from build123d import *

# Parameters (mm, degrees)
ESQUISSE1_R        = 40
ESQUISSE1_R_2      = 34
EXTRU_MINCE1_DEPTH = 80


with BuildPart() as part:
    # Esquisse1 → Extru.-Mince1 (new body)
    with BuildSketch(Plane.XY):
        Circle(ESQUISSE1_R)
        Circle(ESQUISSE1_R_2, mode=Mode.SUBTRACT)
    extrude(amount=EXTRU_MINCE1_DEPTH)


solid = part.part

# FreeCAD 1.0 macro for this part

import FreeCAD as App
import Part
import Sketcher

V = App.Vector
Q = App.Units.Quantity

doc = App.newDocument("Part")
body = doc.addObject("PartDesign::Body", "Body")

# Sketch on XY plane
sketch1 = body.newObject("Sketcher::SketchObject", "Sketch")
sketch1.AttachmentSupport = (doc.getObject("XY_Plane"), [""])
sketch1.MapMode = "FlatFace"
sketch1.addGeometry(Part.Circle(V(0, 0, 0), V(0, 0, 1), 40), False)
sketch1.addGeometry(Part.Circle(V(0, 0, 0), V(0, 0, 1), 34), False)
sketch1.addConstraint(Sketcher.Constraint("Coincident", 0, 3, -1, 1))
sketch1.addConstraint(Sketcher.Constraint("Coincident", 1, 3, -1, 1))
sketch1.addConstraint(Sketcher.Constraint("Diameter", 0, Q("80 mm")))
sketch1.addConstraint(Sketcher.Constraint("Diameter", 1, Q("68 mm")))
pad1 = body.newObject("PartDesign::Pad", "Pad")
pad1.Profile = sketch1
pad1.Length = 80

doc.recompute()
